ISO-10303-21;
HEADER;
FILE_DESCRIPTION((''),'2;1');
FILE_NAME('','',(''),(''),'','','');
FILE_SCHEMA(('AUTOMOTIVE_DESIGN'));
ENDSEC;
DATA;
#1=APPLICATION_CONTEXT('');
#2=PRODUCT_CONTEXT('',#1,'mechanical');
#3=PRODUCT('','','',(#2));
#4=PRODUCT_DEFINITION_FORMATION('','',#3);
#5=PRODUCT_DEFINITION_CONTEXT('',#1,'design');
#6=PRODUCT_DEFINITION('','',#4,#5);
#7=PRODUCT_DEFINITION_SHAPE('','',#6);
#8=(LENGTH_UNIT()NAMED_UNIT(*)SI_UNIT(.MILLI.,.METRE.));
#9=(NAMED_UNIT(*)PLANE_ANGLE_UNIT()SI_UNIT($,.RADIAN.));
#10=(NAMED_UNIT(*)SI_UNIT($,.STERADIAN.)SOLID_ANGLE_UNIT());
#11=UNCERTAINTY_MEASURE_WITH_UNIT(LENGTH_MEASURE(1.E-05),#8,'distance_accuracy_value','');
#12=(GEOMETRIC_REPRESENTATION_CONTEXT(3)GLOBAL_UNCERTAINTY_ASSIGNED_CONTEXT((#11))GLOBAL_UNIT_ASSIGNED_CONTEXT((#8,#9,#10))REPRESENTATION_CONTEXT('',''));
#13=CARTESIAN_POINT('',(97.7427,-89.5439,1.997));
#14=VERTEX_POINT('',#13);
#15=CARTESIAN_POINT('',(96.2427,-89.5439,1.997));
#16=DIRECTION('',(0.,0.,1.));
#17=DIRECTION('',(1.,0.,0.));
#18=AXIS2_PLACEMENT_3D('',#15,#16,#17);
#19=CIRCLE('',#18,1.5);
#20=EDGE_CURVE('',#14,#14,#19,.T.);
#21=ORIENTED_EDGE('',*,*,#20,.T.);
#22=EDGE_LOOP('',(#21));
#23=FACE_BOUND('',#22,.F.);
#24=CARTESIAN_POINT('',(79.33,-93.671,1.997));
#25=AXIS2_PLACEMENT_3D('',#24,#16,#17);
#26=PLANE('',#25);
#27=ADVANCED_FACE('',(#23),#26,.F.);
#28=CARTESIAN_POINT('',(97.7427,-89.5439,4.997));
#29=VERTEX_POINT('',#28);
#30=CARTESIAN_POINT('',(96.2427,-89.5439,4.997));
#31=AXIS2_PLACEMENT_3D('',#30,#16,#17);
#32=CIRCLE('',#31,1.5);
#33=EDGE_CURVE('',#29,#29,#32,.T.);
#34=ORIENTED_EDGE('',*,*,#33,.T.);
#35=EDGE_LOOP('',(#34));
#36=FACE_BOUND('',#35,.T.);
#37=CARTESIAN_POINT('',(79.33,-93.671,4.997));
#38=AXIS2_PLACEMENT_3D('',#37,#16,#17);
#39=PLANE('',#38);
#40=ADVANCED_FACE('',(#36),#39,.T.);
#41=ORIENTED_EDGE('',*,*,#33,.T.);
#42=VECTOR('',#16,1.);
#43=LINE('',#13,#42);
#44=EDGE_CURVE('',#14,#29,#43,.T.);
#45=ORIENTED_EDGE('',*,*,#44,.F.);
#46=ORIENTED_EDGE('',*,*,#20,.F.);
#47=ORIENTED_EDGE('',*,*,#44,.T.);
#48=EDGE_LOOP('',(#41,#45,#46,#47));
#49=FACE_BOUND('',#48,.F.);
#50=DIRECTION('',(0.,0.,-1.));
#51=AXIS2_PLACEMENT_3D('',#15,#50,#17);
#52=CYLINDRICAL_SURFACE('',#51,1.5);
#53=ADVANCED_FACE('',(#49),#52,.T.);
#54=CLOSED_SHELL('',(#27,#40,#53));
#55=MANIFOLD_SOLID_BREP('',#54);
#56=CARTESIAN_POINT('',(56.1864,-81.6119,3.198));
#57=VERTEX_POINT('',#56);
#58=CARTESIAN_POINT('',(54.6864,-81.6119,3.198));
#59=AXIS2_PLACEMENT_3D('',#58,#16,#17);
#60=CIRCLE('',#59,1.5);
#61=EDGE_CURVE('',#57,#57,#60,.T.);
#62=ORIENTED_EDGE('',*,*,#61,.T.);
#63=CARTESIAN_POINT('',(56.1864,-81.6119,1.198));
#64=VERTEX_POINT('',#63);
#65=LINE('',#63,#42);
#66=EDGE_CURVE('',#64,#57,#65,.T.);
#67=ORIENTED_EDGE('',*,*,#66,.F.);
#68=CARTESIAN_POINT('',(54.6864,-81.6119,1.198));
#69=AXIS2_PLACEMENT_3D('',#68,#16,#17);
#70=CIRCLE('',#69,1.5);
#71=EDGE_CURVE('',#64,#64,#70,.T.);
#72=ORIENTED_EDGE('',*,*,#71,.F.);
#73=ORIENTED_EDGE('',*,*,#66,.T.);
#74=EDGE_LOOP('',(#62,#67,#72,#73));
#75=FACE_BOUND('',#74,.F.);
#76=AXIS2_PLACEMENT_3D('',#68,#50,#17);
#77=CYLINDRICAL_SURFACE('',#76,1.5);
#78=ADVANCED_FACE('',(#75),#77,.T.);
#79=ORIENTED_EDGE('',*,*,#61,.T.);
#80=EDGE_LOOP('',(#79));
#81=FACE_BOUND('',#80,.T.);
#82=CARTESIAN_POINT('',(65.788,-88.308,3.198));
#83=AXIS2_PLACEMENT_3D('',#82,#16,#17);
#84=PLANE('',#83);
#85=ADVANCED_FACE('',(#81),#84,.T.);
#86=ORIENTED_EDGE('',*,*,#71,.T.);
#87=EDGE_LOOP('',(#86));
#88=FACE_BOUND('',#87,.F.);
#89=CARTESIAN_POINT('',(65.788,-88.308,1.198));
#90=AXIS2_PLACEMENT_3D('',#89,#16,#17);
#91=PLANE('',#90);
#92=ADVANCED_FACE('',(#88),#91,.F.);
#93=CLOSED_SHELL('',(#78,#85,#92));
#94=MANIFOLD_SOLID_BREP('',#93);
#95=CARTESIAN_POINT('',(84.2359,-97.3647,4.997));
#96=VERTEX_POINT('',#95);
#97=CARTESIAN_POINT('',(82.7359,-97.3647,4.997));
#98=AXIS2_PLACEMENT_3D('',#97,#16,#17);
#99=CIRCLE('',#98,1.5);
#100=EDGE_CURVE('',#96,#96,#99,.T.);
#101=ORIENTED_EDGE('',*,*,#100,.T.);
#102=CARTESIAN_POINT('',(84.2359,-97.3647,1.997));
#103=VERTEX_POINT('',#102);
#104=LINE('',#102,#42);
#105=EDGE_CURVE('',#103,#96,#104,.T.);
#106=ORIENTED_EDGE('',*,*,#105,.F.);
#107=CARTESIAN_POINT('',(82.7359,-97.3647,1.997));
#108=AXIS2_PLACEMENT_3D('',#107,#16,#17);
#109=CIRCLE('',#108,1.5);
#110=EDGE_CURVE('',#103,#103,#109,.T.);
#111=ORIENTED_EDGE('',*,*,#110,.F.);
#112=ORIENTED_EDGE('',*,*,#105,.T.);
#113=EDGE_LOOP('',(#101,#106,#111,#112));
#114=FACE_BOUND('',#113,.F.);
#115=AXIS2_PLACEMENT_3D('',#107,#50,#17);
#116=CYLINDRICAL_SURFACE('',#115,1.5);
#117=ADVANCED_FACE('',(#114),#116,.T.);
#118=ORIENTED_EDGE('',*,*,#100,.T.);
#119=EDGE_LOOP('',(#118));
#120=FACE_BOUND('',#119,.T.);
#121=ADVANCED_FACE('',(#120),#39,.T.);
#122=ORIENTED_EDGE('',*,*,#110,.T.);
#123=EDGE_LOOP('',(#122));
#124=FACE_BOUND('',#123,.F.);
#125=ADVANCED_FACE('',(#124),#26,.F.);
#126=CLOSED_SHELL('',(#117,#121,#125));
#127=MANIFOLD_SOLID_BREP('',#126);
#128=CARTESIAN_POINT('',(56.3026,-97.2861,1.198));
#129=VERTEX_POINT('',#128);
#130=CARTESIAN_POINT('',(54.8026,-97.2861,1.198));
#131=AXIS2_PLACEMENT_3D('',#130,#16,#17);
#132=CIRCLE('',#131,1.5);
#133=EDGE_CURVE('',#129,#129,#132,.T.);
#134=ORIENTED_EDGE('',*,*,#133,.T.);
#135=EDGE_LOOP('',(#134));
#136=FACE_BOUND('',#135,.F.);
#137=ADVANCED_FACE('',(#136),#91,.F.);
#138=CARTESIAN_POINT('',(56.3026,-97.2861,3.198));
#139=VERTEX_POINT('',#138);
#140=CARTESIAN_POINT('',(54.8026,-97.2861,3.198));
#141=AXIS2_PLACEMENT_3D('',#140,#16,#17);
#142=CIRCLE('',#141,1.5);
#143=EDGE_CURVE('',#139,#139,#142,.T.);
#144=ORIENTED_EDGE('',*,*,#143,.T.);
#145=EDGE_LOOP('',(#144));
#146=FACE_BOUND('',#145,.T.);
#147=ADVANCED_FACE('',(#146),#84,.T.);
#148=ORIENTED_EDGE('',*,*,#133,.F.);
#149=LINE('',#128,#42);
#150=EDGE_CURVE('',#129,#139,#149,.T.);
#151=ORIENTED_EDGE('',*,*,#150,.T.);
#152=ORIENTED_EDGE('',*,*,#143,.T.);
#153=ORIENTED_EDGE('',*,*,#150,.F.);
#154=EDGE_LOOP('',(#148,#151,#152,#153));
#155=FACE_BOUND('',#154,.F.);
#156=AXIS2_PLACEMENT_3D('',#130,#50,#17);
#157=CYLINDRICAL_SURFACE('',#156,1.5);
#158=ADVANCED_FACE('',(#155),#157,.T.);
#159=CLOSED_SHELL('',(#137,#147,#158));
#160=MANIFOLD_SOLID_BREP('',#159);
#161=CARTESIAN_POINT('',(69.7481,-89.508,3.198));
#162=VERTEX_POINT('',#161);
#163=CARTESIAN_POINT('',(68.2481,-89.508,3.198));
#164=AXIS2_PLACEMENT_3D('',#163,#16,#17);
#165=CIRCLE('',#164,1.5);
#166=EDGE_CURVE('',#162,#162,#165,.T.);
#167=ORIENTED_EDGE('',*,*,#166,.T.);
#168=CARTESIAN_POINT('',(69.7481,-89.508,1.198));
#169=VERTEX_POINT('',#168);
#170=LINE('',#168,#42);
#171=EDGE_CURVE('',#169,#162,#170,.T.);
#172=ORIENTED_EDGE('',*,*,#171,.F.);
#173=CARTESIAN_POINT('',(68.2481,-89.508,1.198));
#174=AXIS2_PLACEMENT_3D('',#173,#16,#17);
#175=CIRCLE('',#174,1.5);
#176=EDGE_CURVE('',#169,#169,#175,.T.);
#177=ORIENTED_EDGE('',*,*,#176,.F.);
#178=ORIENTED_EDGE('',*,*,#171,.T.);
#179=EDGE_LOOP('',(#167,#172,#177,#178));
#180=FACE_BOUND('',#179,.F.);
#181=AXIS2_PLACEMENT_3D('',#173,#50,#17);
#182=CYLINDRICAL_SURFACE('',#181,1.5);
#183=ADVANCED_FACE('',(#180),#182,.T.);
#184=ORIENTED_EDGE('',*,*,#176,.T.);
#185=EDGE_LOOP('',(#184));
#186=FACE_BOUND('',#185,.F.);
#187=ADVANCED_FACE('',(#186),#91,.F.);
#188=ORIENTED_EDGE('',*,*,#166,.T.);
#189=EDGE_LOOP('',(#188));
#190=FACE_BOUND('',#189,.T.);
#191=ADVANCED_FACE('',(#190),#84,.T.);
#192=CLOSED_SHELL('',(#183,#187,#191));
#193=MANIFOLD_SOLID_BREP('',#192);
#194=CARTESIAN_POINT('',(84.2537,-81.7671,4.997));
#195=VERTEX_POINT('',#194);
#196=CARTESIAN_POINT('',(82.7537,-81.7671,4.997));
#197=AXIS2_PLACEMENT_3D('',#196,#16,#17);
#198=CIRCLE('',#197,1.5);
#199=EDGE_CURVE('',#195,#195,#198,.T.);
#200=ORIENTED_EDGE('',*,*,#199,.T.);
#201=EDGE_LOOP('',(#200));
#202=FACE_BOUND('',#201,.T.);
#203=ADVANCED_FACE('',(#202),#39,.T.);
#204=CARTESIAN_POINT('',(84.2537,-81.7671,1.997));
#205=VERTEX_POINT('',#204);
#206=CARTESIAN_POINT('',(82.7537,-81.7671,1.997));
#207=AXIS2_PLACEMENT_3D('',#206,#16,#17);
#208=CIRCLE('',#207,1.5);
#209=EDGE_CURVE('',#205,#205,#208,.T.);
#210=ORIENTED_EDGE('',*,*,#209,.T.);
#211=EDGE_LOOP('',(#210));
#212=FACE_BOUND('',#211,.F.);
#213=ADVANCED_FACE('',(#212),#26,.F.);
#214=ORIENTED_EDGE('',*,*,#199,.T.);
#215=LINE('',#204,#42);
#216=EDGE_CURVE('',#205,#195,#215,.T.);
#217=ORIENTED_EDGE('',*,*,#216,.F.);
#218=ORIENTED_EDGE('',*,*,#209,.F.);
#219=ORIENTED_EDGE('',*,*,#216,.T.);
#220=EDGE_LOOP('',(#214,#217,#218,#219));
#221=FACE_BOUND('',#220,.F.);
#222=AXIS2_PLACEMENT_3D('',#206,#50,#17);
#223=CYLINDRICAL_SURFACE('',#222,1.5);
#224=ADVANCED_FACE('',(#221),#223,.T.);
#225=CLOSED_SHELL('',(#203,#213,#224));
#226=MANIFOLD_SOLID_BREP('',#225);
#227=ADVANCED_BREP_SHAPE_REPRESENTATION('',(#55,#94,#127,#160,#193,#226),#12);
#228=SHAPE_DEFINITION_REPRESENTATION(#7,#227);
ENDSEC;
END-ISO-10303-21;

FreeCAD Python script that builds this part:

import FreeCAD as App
import Part
import Sketcher

V = App.Vector
Q = App.Units.Quantity

doc = App.newDocument("Part")
body = doc.addObject("PartDesign::Body", "Body")
body.AllowCompound = True

sketch1 = body.newObject("Sketcher::SketchObject", "Sketch")
sketch1.AttachmentSupport = (doc.getObject("XY_Plane"), [""])
sketch1.MapMode = "FlatFace"
sketch1.AttachmentOffset = App.Placement(V(0, 0, 1.997), App.Rotation())
sketch1.addGeometry([
    Part.Circle(V(82.8, -81.8, 0), V(0, 0, 1), 1.5),
    Part.Circle(V(96.2, -89.5, 0), V(0, 0, 1), 1.5),
    Part.Circle(V(82.7, -97.4, 0), V(0, 0, 1), 1.5),
], False)
sketch1.addConstraint([
    Sketcher.Constraint("Equal", 0, 1),
    Sketcher.Constraint("Equal", 1, 2),
    Sketcher.Constraint("Diameter", 0, Q("3 mm")),
    Sketcher.Constraint("DistanceY", 0, 3, -1, 1, Q("81.767 mm")),
    Sketcher.Constraint("DistanceY", 1, 3, -1, 1, Q("89.544 mm")),
    Sketcher.Constraint("DistanceX", -1, 1, 2, 3, Q("82.736 mm")),
    Sketcher.Constraint("DistanceX", 0, 3, 1, 3, Q("13.489 mm")),
    Sketcher.Constraint("DistanceX", -1, 1, 0, 3, Q("82.7537 mm")),
    Sketcher.Constraint("DistanceY", 2, 3, -1, 1, Q("97.3647 mm")),
])
pad1 = body.newObject("PartDesign::Pad", "Pad")
pad1.Profile = sketch1
pad1.Length = 3

sketch2 = body.newObject("Sketcher::SketchObject", "Sketch001")
sketch2.AttachmentSupport = (doc.getObject("XY_Plane"), [""])
sketch2.MapMode = "FlatFace"
sketch2.AttachmentOffset = App.Placement(V(0, 0, 1.198), App.Rotation())
sketch2.addGeometry([
    Part.Circle(V(54.7, -81.6, 0), V(0, 0, 1), 1.5),
    Part.Circle(V(54.8, -97.3, 0), V(0, 0, 1), 1.5),
    Part.Circle(V(68.2, -89.5, 0), V(0, 0, 1), 1.5),
], False)
sketch2.addConstraint([
    Sketcher.Constraint("Equal", 0, 1),
    Sketcher.Constraint("Equal", 1, 2),
    Sketcher.Constraint("Diameter", 0, Q("3 mm")),
    Sketcher.Constraint("DistanceY", 0, 3, -1, 1, Q("81.612 mm")),
    Sketcher.Constraint("DistanceY", 1, 3, -1, 1, Q("97.286 mm")),
    Sketcher.Constraint("DistanceX", -1, 1, 2, 3, Q("68.248 mm")),
    Sketcher.Constraint("DistanceY", 2, 3, -1, 1, Q("89.508 mm")),
    Sketcher.Constraint("DistanceX", -1, 1, 0, 3, Q("54.6864 mm")),
    Sketcher.Constraint("DistanceX", -1, 1, 1, 3, Q("54.8026 mm")),
])
pad2 = body.newObject("PartDesign::Pad", "Pad001")
pad2.Profile = sketch2
pad2.Length = 2

doc.recompute()
